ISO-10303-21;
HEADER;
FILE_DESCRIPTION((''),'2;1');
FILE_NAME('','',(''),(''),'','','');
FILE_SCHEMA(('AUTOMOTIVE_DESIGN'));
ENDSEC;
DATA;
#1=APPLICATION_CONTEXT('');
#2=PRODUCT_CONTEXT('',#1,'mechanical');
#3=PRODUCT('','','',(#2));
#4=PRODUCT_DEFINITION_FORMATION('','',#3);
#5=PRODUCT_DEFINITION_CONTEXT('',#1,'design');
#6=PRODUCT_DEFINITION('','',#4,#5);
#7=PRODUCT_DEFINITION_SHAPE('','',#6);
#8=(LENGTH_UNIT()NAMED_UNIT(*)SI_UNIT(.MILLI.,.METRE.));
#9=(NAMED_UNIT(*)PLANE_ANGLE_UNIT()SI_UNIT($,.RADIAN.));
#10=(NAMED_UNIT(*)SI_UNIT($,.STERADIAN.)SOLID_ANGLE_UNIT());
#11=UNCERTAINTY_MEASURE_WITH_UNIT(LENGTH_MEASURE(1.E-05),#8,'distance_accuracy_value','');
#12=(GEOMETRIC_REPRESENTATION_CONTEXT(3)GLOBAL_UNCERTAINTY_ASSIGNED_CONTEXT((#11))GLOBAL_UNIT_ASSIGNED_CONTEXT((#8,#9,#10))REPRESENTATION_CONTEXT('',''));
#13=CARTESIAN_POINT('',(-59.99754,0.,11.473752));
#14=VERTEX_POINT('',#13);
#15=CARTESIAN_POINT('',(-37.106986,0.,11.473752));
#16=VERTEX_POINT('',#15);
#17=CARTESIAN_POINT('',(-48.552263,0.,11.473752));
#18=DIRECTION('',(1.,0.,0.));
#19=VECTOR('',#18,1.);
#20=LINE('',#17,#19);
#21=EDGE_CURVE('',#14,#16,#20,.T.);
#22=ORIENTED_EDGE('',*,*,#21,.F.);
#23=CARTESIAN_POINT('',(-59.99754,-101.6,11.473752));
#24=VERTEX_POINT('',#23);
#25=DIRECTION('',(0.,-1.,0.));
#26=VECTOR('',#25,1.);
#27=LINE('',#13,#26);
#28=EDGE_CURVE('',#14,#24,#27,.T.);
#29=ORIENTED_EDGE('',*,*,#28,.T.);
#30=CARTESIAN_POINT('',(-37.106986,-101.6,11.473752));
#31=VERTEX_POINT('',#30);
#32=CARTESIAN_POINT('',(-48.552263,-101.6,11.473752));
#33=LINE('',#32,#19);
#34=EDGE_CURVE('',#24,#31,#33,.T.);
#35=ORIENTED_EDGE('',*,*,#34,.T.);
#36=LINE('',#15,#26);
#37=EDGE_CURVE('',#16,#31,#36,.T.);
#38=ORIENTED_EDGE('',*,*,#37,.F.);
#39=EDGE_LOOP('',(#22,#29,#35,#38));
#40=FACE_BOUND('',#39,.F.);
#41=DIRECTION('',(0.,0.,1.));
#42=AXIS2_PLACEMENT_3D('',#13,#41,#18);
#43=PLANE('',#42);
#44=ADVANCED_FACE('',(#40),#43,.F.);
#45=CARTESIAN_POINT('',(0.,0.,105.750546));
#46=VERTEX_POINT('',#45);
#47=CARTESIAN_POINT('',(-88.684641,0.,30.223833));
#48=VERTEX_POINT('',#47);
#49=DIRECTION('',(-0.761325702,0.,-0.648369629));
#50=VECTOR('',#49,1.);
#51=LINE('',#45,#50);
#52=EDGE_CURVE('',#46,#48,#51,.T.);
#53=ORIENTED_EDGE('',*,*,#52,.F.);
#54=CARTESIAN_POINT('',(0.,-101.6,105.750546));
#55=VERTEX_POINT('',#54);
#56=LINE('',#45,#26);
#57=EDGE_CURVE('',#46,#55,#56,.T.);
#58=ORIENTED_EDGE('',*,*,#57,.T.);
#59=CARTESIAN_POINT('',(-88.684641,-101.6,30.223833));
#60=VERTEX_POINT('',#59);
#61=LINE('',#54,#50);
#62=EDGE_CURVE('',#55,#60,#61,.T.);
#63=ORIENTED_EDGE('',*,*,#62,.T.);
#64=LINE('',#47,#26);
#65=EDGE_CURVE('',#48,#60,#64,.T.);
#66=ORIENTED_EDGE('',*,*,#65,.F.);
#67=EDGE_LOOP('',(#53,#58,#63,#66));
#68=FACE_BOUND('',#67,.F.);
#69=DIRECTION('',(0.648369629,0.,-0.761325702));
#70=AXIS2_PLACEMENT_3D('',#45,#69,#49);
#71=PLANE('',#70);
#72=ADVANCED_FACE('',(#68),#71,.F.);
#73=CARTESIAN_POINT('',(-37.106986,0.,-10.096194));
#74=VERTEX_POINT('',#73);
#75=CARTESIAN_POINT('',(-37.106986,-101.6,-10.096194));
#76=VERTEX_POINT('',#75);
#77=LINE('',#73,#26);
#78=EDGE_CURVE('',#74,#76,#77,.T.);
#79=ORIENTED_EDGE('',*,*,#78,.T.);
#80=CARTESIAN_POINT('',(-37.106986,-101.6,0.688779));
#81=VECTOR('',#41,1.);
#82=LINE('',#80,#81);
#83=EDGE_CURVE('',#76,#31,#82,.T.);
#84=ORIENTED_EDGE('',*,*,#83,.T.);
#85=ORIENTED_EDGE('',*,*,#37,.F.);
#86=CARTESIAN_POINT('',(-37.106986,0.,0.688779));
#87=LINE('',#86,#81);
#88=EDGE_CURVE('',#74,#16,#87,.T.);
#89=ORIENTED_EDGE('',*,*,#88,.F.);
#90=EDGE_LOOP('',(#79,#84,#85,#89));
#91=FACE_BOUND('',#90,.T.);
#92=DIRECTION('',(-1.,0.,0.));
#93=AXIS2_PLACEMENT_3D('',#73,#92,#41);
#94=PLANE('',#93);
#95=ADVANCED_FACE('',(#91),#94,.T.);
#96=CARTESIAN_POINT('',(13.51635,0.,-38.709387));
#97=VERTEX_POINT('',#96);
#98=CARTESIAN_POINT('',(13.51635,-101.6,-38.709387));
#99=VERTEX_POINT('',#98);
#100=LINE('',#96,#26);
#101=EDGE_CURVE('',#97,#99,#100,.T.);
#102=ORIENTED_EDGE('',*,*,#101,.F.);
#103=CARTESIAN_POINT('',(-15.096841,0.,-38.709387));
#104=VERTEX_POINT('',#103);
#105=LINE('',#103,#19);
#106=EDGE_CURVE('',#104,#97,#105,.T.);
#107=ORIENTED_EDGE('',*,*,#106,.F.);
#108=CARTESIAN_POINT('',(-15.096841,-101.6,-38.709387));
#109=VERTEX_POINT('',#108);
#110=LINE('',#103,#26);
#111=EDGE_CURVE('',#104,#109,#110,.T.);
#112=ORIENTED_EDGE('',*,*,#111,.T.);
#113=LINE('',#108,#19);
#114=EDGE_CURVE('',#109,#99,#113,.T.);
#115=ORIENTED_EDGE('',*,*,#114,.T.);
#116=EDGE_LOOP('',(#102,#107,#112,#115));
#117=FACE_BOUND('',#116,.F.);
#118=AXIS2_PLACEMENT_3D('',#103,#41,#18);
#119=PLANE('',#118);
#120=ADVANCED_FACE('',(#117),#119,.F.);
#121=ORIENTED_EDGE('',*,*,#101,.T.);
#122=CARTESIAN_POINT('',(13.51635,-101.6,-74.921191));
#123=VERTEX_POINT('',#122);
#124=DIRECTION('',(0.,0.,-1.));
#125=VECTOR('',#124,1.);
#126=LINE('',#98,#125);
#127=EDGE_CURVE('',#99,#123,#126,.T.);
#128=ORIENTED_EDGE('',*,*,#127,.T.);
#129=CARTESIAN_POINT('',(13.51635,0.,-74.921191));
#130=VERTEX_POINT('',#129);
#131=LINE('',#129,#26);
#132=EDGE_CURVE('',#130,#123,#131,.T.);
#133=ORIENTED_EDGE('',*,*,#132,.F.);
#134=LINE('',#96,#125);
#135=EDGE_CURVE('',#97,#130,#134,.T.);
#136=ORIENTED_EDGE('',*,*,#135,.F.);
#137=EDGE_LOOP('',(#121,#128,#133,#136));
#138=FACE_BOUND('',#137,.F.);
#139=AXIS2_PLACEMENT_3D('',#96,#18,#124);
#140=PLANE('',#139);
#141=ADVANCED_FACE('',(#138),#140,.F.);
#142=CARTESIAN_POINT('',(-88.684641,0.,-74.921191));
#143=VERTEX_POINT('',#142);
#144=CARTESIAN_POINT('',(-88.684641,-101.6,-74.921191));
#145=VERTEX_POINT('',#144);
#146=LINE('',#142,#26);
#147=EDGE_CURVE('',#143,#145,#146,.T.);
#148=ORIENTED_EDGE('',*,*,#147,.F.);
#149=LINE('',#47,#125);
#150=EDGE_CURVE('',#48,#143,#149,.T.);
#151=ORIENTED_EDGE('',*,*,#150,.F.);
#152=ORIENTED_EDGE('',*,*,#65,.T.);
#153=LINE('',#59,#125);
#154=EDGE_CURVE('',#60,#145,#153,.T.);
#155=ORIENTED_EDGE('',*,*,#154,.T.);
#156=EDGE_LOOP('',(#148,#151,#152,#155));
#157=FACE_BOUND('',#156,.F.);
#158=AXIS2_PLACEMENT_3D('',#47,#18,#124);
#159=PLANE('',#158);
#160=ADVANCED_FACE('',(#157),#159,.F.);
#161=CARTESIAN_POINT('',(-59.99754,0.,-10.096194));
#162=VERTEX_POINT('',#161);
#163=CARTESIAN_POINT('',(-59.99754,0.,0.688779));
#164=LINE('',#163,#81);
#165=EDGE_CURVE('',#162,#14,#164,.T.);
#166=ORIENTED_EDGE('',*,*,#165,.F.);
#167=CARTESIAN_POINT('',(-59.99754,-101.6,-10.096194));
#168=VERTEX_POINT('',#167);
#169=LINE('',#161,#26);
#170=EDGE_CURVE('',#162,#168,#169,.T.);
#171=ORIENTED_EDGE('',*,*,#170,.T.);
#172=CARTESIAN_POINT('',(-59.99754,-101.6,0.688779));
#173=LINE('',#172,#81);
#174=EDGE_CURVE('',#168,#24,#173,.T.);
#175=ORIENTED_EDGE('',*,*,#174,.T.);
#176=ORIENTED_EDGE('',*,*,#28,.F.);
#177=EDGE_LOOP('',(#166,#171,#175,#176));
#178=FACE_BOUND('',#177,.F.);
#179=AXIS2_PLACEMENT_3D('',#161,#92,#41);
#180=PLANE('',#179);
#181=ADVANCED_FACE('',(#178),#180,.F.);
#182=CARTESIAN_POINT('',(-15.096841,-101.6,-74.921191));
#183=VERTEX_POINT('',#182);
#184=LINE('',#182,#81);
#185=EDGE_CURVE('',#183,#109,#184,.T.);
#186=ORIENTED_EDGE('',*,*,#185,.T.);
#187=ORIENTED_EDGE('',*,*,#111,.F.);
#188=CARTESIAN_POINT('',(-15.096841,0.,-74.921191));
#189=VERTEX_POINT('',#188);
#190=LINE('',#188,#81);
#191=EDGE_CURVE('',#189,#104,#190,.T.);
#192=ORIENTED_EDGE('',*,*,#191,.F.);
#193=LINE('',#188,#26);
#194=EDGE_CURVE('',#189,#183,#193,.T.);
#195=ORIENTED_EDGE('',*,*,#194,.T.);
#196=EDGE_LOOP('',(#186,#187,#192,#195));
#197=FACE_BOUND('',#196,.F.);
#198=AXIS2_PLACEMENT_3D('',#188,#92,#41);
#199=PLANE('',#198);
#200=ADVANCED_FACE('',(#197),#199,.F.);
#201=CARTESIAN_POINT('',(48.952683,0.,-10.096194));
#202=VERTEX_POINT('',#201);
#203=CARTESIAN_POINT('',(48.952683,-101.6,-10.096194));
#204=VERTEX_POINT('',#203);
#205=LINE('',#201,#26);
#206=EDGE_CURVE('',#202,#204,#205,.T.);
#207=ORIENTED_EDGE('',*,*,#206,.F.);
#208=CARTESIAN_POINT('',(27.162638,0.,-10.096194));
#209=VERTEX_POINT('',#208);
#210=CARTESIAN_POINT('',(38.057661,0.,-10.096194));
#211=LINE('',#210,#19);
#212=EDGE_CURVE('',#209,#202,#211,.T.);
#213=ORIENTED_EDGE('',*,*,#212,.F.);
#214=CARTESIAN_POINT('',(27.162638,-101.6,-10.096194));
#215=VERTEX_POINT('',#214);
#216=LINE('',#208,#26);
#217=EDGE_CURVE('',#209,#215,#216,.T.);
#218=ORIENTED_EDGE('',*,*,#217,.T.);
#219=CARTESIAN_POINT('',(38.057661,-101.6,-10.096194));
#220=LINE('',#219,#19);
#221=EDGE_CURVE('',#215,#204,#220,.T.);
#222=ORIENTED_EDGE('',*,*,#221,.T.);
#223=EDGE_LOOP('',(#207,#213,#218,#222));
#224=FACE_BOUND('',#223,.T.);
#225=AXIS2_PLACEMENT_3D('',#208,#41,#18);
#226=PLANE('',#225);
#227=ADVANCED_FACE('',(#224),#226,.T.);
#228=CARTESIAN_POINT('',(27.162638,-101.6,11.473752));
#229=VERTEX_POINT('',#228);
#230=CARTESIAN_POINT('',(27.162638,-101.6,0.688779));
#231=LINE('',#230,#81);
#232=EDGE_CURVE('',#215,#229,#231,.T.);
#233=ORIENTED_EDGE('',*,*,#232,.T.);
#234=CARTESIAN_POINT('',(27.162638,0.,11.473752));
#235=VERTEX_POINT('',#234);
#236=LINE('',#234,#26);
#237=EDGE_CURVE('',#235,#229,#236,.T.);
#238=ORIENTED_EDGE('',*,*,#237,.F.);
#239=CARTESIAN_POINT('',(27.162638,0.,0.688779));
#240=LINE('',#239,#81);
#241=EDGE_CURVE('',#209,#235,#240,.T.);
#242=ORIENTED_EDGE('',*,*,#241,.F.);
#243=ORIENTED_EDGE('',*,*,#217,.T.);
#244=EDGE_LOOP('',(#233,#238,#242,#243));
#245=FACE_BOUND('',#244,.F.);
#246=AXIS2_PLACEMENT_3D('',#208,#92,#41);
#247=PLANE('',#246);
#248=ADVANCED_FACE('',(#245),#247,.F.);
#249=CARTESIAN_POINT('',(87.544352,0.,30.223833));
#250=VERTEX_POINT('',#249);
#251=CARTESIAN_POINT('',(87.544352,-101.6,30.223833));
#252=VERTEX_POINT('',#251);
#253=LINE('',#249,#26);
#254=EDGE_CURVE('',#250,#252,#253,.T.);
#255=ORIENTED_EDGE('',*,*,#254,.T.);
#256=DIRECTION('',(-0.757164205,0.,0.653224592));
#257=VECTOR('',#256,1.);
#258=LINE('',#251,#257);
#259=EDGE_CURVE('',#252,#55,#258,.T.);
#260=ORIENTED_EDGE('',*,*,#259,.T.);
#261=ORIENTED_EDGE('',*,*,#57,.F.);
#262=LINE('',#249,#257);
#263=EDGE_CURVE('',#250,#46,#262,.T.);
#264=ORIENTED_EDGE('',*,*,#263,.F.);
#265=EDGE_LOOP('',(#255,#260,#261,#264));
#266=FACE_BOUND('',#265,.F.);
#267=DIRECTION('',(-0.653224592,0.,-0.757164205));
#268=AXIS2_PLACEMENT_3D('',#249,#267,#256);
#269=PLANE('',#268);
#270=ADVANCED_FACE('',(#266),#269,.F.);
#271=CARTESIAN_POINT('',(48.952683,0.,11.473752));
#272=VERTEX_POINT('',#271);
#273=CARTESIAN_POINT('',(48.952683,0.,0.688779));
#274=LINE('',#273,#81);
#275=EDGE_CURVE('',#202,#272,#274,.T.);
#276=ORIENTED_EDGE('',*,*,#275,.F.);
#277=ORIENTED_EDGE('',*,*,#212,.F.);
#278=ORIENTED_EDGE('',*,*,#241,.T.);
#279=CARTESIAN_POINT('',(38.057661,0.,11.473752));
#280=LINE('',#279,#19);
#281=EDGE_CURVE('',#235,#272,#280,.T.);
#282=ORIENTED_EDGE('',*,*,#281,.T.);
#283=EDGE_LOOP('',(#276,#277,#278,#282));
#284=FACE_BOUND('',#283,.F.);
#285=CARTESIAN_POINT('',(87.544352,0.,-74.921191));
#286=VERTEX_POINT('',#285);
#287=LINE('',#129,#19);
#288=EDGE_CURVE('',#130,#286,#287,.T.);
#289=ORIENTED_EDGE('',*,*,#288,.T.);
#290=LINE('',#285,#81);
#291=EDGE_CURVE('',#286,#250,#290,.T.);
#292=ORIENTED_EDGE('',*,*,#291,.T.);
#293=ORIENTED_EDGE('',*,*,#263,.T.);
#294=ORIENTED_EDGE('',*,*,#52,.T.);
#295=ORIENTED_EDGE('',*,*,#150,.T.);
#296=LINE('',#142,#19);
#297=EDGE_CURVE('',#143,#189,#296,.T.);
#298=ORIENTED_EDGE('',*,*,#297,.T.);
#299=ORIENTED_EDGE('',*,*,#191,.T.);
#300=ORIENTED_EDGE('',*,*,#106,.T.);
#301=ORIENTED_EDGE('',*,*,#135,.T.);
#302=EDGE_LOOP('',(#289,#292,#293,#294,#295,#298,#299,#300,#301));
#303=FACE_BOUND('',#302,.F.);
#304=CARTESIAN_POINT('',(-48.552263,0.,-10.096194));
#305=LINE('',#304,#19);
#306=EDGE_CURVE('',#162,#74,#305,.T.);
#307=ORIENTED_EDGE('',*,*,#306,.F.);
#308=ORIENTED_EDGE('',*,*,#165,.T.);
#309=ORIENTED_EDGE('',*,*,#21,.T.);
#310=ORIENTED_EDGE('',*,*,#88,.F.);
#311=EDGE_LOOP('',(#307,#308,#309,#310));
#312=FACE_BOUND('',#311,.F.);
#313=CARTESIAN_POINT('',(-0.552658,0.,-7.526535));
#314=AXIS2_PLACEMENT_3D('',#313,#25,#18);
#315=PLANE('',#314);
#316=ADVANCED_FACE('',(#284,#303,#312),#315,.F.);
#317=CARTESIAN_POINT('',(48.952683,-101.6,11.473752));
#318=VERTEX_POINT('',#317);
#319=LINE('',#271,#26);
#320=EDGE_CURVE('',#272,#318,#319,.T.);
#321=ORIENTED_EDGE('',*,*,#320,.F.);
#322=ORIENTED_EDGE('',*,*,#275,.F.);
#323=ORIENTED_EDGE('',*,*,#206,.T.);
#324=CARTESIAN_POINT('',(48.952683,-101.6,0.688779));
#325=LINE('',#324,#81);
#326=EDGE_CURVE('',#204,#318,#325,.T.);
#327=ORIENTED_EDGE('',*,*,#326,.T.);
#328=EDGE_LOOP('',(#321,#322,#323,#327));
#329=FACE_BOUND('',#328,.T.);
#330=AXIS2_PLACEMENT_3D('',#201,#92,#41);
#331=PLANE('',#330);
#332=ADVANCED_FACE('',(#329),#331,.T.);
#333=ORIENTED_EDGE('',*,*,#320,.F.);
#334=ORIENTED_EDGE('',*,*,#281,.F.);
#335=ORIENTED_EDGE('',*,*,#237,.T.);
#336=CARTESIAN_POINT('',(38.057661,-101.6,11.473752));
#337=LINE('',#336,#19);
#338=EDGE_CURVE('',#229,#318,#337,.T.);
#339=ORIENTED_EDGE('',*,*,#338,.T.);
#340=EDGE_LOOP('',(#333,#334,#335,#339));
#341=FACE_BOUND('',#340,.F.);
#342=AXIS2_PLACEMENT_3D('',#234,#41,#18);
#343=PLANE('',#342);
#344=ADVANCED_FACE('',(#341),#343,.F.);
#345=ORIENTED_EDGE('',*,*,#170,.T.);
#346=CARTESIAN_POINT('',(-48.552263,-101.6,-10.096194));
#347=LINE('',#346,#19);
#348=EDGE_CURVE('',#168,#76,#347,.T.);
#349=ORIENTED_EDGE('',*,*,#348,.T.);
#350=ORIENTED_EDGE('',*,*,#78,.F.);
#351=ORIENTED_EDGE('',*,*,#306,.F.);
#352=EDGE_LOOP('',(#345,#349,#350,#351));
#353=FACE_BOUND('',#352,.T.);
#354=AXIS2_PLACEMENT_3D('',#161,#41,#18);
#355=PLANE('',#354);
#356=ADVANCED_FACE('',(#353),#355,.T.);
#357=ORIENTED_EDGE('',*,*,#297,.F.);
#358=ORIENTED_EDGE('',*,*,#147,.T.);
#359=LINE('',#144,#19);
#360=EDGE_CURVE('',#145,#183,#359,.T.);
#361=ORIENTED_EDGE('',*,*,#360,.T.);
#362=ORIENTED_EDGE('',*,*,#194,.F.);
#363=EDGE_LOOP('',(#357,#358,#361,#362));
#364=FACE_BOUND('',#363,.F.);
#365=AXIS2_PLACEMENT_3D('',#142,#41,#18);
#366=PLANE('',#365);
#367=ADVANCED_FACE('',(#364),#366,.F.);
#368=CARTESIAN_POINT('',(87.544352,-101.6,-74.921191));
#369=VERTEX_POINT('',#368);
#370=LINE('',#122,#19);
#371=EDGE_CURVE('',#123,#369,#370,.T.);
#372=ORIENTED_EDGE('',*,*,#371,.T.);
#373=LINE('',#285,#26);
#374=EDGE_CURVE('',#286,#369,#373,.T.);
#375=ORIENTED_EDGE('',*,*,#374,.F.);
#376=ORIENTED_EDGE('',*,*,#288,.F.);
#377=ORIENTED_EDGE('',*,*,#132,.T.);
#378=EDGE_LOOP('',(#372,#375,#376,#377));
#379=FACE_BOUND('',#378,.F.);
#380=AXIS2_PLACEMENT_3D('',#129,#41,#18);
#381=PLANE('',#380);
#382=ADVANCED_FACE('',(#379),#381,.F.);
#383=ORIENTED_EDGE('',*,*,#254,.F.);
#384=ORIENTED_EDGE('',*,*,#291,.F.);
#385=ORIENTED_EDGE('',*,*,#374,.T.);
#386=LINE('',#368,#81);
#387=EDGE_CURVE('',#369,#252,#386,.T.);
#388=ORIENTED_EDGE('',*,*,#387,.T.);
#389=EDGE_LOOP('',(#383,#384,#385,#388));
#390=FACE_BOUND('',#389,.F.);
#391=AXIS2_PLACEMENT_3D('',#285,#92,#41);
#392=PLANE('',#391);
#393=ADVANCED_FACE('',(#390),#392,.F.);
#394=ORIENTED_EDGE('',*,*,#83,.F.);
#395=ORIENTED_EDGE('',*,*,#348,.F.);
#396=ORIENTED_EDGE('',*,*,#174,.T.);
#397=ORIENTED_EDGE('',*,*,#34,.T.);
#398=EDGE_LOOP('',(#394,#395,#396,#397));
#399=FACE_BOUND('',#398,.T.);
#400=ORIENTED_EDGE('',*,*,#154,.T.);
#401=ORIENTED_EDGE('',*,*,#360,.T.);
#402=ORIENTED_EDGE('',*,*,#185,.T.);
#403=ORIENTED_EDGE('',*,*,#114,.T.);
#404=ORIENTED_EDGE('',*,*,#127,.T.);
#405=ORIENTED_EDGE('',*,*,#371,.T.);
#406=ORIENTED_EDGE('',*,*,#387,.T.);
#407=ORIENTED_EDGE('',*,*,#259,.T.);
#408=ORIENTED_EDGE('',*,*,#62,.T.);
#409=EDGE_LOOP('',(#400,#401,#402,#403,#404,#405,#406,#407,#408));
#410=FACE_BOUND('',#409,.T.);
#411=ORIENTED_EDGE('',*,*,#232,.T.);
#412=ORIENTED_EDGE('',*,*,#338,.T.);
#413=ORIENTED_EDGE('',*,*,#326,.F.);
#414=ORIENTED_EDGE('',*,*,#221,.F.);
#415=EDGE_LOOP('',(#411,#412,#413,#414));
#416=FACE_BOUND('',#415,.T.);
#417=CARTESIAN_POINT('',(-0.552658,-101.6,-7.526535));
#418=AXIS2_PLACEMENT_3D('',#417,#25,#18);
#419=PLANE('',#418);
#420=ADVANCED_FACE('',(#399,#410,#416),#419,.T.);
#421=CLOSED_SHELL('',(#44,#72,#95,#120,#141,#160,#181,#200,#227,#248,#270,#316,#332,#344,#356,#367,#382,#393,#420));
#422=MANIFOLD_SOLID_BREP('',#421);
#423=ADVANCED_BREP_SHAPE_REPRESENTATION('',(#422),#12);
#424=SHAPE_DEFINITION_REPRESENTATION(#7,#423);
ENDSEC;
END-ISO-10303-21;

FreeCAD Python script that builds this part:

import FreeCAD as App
import Part
import Sketcher
Q = App.Units.Quantity


def add_polygon(sketch, points):
    """Adds a closed chain of lines whose ends are joined by coincident constraints."""
    first, n = sketch.GeometryCount, len(points)
    for a, b in zip(points, points[1:] + points[:1]):
        sketch.addGeometry(Part.LineSegment(App.Vector(*a, 0), App.Vector(*b, 0)), False)
    for i in range(n):
        sketch.addConstraint(Sketcher.Constraint("Coincident", first + i, 2, first + (i + 1) % n, 1))

doc = App.newDocument("Part")
params = doc.addObject("Spreadsheet::Sheet", "Params")
for row, (alias, value) in enumerate([
    ("pad1_length", "4 in"),
], start=1):
    params.set(f"A{row}", alias)
    params.set(f"B{row}", "=" + value)
    params.setAlias(f"B{row}", alias)

body = doc.addObject("PartDesign::Body", "Body")

sketch1 = body.newObject("Sketcher::SketchObject", "Sketch")
sketch1.AttachmentSupport = (doc.getObject("XZ_Plane"), [""])
sketch1.MapMode = "FlatFace"
add_polygon(sketch1, [(0, 106), (-89, 30), (-89, -75), (-15, -75), (-15, -39), (14, -39), (14, -75), (88, -75), (88, 30)])
add_polygon(sketch1, [(-37, -10), (-60, -10), (-60, 11), (-37, 11)])
add_polygon(sketch1, [(49, -10), (27, -10), (27, 11), (49, 11)])
sketch1.addConstraint(Sketcher.Constraint("Vertical", 1))
sketch1.addConstraint(Sketcher.Constraint("Horizontal", 2))
sketch1.addConstraint(Sketcher.Constraint("Vertical", 3))
sketch1.addConstraint(Sketcher.Constraint("Horizontal", 4))
sketch1.addConstraint(Sketcher.Constraint("Vertical", 5))
sketch1.addConstraint(Sketcher.Constraint("Horizontal", 6))
sketch1.addConstraint(Sketcher.Constraint("Vertical", 7))
sketch1.addConstraint(Sketcher.Constraint("Horizontal", 9))
sketch1.addConstraint(Sketcher.Constraint("Vertical", 10))
sketch1.addConstraint(Sketcher.Constraint("Horizontal", 11))
sketch1.addConstraint(Sketcher.Constraint("Vertical", 12))
sketch1.addConstraint(Sketcher.Constraint("Horizontal", 13))
sketch1.addConstraint(Sketcher.Constraint("Vertical", 14))
sketch1.addConstraint(Sketcher.Constraint("Horizontal", 15))
sketch1.addConstraint(Sketcher.Constraint("Vertical", 16))
sketch1.addConstraint(Sketcher.Constraint("PointOnObject", 8, 2, -2))
sketch1.addConstraint(Sketcher.Constraint("Horizontal", 2, 2, 5, 2))
sketch1.addConstraint(Sketcher.Constraint("Horizontal", 0, 2, 7, 2))
sketch1.addConstraint(Sketcher.Constraint("Horizontal", 12, 2, 13, 2))
sketch1.addConstraint(Sketcher.Constraint("Horizontal", 11, 2, 14, 2))
sketch1.addConstraint(Sketcher.Constraint("DistanceX", 2, 1, 2, 2, Q("73.5878 mm")))
sketch1.addConstraint(Sketcher.Constraint("DistanceX", 6, 1, 6, 2, Q("74.028002 mm")))
sketch1.addConstraint(Sketcher.Constraint("DistanceX", 12, 2, 13, 2, Q("2.5303002 in")))
sketch1.addConstraint(Sketcher.Constraint("DistanceX", 4, 1, 4, 2, Q("28.613191 mm")))
sketch1.addConstraint(Sketcher.Constraint("DistanceX", 0, 2, 9, 2, Q("28.687101 mm")))
sketch1.addConstraint(Sketcher.Constraint("DistanceX", 9, 2, 9, 1, Q("22.890553 mm")))
sketch1.addConstraint(Sketcher.Constraint("DistanceX", 13, 2, 13, 1, Q("21.790045 mm")))
sketch1.addConstraint(Sketcher.Constraint("DistanceY", 1, 2, 1, 1, Q("105.145024 mm")))
sketch1.addConstraint(Sketcher.Constraint("DistanceY", 3, 1, 3, 2, Q("36.211804 mm")))
sketch1.addConstraint(Sketcher.Constraint("DistanceY", 10, 1, 10, 2, Q("21.569945 mm")))
sketch1.addConstraint(Sketcher.Constraint("DistanceX", 0, 2, -1, 1, Q("88.684641 mm")))
sketch1.addConstraint(Sketcher.Constraint("DistanceY", 1, 2, -1, 1, Q("74.921191 mm")))
sketch1.addConstraint(Sketcher.Constraint("DistanceY", -1, 1, 10, 2, Q("11.473752 mm")))
sketch1.addConstraint(Sketcher.Constraint("Distance", 0, Q("116.487123 mm")))
pad1 = body.newObject("PartDesign::Pad", "Pad")
pad1.Profile = sketch1
pad1.setExpression("Length", "Params.pad1_length")

doc.recompute()
